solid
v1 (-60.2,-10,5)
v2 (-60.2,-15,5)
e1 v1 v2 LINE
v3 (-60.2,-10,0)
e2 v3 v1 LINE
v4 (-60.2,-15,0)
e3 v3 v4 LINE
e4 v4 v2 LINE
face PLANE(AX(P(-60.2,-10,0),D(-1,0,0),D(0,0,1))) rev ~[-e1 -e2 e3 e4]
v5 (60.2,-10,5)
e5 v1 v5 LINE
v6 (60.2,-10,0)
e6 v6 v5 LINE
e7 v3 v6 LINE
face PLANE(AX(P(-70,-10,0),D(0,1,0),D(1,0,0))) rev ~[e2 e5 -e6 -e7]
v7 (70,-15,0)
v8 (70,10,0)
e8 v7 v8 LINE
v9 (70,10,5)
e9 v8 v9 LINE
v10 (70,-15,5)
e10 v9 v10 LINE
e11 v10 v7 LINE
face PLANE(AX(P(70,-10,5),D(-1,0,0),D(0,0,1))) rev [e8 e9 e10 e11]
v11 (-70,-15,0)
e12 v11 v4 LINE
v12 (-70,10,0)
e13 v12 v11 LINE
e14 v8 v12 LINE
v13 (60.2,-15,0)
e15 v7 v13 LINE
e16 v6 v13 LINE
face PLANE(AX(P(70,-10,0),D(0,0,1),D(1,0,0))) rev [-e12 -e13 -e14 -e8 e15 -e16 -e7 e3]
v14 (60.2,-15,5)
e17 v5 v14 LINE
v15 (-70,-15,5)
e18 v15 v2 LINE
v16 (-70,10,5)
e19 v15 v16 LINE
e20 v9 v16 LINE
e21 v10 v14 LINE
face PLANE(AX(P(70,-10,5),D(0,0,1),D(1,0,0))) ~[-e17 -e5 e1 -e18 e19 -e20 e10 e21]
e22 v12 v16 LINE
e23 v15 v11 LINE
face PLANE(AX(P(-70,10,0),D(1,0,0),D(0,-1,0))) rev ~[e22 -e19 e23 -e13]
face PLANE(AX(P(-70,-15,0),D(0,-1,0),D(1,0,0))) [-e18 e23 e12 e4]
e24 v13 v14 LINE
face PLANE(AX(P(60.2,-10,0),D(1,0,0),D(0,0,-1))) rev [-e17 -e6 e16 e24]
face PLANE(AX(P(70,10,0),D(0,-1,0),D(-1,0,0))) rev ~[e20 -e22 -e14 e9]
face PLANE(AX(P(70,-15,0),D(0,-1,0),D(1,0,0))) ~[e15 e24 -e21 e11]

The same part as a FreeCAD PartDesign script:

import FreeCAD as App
import Part
import Sketcher

V = App.Vector

doc = App.newDocument("Part")
params = doc.addObject("Spreadsheet::Sheet", "Params")
for row, (alias, value) in enumerate([
    ("sketch1_width", "140 mm"),
    ("sketch1_height", "20 mm"),
    ("pad1_length", "5 mm"),
    ("sketch2_width", "9.8 mm"),
    ("sketch2_height", "5 mm"),
    ("pad2_length", "5 mm"),
], start=1):
    params.set(f"A{row}", alias)
    params.set(f"B{row}", "=" + value)
    params.setAlias(f"B{row}", alias)

body = doc.addObject("PartDesign::Body", "Body")

# Sketch on XY plane
sketch1 = body.newObject("Sketcher::SketchObject", "Sketch")
sketch1.AttachmentSupport = (doc.getObject("XY_Plane"), [""])
sketch1.MapMode = "FlatFace"
sketch1.addGeometry([
    Part.LineSegment(V(-70, 10, 0), V(-70, -10, 0)),
    Part.LineSegment(V(-70, -10, 0), V(70, -10, 0)),
    Part.LineSegment(V(70, -10, 0), V(70, 10, 0)),
    Part.LineSegment(V(70, 10, 0), V(-70, 10, 0)),
], False)
sketch1.addConstraint([
    Sketcher.Constraint("Coincident", 0, 2, 1, 1),
    Sketcher.Constraint("Coincident", 1, 2, 2, 1),
    Sketcher.Constraint("Coincident", 2, 2, 3, 1),
    Sketcher.Constraint("Coincident", 3, 2, 0, 1),
    Sketcher.Constraint("Vertical", 0),
    Sketcher.Constraint("Horizontal", 1),
    Sketcher.Constraint("Vertical", 2),
    Sketcher.Constraint("Horizontal", 3),
    Sketcher.Constraint("Symmetric", 0, 2, 2, 2, -1, 1),
    Sketcher.Constraint("DistanceX", 1, 1, 1, 2, 140.0),
    Sketcher.Constraint("DistanceY", 0, 2, 0, 1, 20.0),
])
sketch1.setExpression("Constraints[9]", "Params.sketch1_width")
sketch1.setExpression("Constraints[10]", "Params.sketch1_height")
pad1 = body.newObject("PartDesign::Pad", "Pad")
pad1.Profile = sketch1
pad1.setExpression("Length", "Params.pad1_length")

# Sketch on XZ plane
sketch2 = body.newObject("Sketcher::SketchObject", "Sketch001")
sketch2.AttachmentSupport = (doc.getObject("XZ_Plane"), [""])
sketch2.MapMode = "FlatFace"
sketch2.AttachmentOffset = App.Placement(V(0, 0, 10), App.Rotation())
sketch2.addGeometry([
    Part.LineSegment(V(-70, 5, 0), V(-70, 0, 0)),
    Part.LineSegment(V(-70, 0, 0), V(-60.2, 0, 0)),
    Part.LineSegment(V(-60.2, 0, 0), V(-60.2, 5, 0)),
    Part.LineSegment(V(-60.2, 5, 0), V(-70, 5, 0)),
], False)
sketch2.addConstraint([
    Sketcher.Constraint("Coincident", 0, 2, 1, 1),
    Sketcher.Constraint("Coincident", 1, 2, 2, 1),
    Sketcher.Constraint("Coincident", 2, 2, 3, 1),
    Sketcher.Constraint("Coincident", 3, 2, 0, 1),
    Sketcher.Constraint("Vertical", 0),
    Sketcher.Constraint("Horizontal", 1),
    Sketcher.Constraint("Vertical", 2),
    Sketcher.Constraint("Horizontal", 3),
    Sketcher.Constraint("PointOnObject", 0, 2, -1),
    Sketcher.Constraint("DistanceX", 1, 1, 1, 2, 9.8),
    Sketcher.Constraint("DistanceY", 0, 2, 0, 1, 5.0),
    Sketcher.Constraint("DistanceX", 0, 2, -1, 1, 70.0),
])
sketch2.setExpression("Constraints[9]", "Params.sketch2_width")
sketch2.setExpression("Constraints[10]", "Params.sketch2_height")
pad2 = body.newObject("PartDesign::Pad", "Pad001")
pad2.Profile = sketch2
pad2.setExpression("Length", "Params.pad2_length")
doc.recompute()

mirrored = body.newObject("PartDesign::Mirrored", "Mirrored")
mirrored.Originals = [pad2]
mirrored.MirrorPlane = (doc.getObject("YZ_Plane"), [""])
body.Tip = mirrored

doc.recompute()
